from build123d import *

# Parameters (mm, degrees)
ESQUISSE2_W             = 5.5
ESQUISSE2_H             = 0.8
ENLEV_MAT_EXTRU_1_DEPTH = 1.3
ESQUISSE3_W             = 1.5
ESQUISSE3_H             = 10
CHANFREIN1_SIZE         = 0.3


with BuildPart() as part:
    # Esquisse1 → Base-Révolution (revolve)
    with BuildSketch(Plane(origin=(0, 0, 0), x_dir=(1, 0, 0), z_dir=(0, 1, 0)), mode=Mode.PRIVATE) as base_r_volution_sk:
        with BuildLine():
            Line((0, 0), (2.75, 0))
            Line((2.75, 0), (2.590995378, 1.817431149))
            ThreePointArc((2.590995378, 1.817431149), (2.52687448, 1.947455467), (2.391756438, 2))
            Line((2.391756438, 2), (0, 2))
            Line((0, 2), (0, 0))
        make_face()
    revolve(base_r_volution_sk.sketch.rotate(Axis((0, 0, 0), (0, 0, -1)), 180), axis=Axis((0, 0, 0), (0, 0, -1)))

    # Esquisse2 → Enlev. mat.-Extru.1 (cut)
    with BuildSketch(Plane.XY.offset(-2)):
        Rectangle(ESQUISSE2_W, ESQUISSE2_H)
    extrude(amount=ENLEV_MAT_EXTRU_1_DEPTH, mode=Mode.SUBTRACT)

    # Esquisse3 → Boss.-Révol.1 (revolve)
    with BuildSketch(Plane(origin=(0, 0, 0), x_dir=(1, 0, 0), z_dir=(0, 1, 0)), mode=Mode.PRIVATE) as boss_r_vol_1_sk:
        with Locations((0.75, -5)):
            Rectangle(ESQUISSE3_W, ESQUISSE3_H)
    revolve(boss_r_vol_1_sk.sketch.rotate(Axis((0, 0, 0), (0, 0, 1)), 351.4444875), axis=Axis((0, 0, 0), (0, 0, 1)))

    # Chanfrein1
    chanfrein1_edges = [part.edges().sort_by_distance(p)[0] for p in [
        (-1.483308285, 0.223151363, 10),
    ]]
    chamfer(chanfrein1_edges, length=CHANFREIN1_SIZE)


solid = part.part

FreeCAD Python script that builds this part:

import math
import FreeCAD as App
import Part
import Sketcher

V = App.Vector
Q = App.Units.Quantity


def edges_at(feature, points):
    """Names of the edges that pass closest to the given points."""
    edges = feature.Shape.Edges
    near = lambda p: min(range(len(edges)), key=lambda i: edges[i].distToShape(Part.Vertex(*p))[0])
    return sorted({f"Edge{near(p) + 1}" for p in points})


def add_polygon(sketch, points):
    """Adds a closed chain of lines whose ends are joined by coincident constraints."""
    first, n = sketch.GeometryCount, len(points)
    for a, b in zip(points, points[1:] + points[:1]):
        sketch.addGeometry(Part.LineSegment(App.Vector(*a, 0), App.Vector(*b, 0)), False)
    for i in range(n):
        sketch.addConstraint(Sketcher.Constraint("Coincident", first + i, 2, first + (i + 1) % n, 1))

doc = App.newDocument("Part")
body = doc.addObject("PartDesign::Body", "Body")

sketch1 = body.newObject("Sketcher::SketchObject", "Sketch")
sketch1.AttachmentSupport = (doc.getObject("XZ_Plane"), [""])
sketch1.MapMode = "FlatFace"
sketch1.addGeometry(Part.LineSegment(V(0, 0, 0), V(2.75, 0, 0)), False)
sketch1.addGeometry(Part.LineSegment(V(2.75, 0, 0), V(2.590995, -1.817431, 0)), False)
sketch1.addGeometry(Part.ArcOfCircle(Part.Circle(V(2.391756, -1.8, 0), V(0, 0, 1), 0.2), math.radians(-90), math.radians(-5)), False)
sketch1.addGeometry(Part.LineSegment(V(2.391756, -2, 0), V(0, -2, 0)), False)
sketch1.addGeometry(Part.LineSegment(V(0, -2, 0), V(0, 0, 0)), False)
sketch1.addConstraint(Sketcher.Constraint("Coincident", 0, 2, 1, 1))
sketch1.addConstraint(Sketcher.Constraint("Tangent", 1, 2, 2, 2))
sketch1.addConstraint(Sketcher.Constraint("Tangent", 2, 1, 3, 1))
sketch1.addConstraint(Sketcher.Constraint("Coincident", 3, 2, 4, 1))
sketch1.addConstraint(Sketcher.Constraint("Coincident", 4, 2, 0, 1))
sketch1.addConstraint(Sketcher.Constraint("Horizontal", 0))
sketch1.addConstraint(Sketcher.Constraint("Horizontal", 3))
sketch1.addConstraint(Sketcher.Constraint("Vertical", 4))
sketch1.addConstraint(Sketcher.Constraint("Coincident", 4, 2, -1, 1))
sketch1.addConstraint(Sketcher.Constraint("Radius", 2, Q("0.2 mm")))
sketch1.addConstraint(Sketcher.Constraint("DistanceY", 4, 1, 4, 2, Q("2 mm")))
sketch1.addConstraint(Sketcher.Constraint("Angle", 1, Q("-95 deg")))
sketch1.addConstraint(Sketcher.Constraint("DistanceX", 0, 1, 0, 2, Q("2.75 mm")))
revolution = body.newObject("PartDesign::Revolution", "Revolution")
revolution.Profile = sketch1
revolution.ReferenceAxis = (sketch1, ["V_Axis"])
revolution.Angle = 360

sketch2 = body.newObject("Sketcher::SketchObject", "Sketch001")
sketch2.AttachmentSupport = (doc.getObject("XY_Plane"), [""])
sketch2.MapMode = "FlatFace"
sketch2.AttachmentOffset = App.Placement(V(0, 0, -2), App.Rotation())
add_polygon(sketch2, [(-2.75, 0.4), (-2.75, -0.4), (2.75, -0.4), (2.75, 0.4)])
sketch2.addConstraint(Sketcher.Constraint("Vertical", 0))
sketch2.addConstraint(Sketcher.Constraint("Horizontal", 1))
sketch2.addConstraint(Sketcher.Constraint("Vertical", 2))
sketch2.addConstraint(Sketcher.Constraint("Horizontal", 3))
sketch2.addConstraint(Sketcher.Constraint("Symmetric", 0, 2, 2, 2, -1, 1))
sketch2.addConstraint(Sketcher.Constraint("DistanceX", 1, 1, 1, 2, Q("5.5 mm")))
sketch2.addConstraint(Sketcher.Constraint("DistanceY", 0, 2, 0, 1, Q("0.8 mm")))
pocket1 = body.newObject("PartDesign::Pocket", "Pocket")
pocket1.Profile = sketch2
pocket1.Length = 1.3
pocket1.Reversed = True

sketch3 = body.newObject("Sketcher::SketchObject", "Sketch002")
sketch3.AttachmentSupport = (doc.getObject("XZ_Plane"), [""])
sketch3.MapMode = "FlatFace"
add_polygon(sketch3, [(0, 0), (0, 10), (1.5, 10), (1.5, 0)])
sketch3.addConstraint(Sketcher.Constraint("Vertical", 0))
sketch3.addConstraint(Sketcher.Constraint("Horizontal", 1))
sketch3.addConstraint(Sketcher.Constraint("Vertical", 2))
sketch3.addConstraint(Sketcher.Constraint("Horizontal", 3))
sketch3.addConstraint(Sketcher.Constraint("Coincident", 3, 2, -1, 1))
sketch3.addConstraint(Sketcher.Constraint("DistanceY", 0, 1, 0, 2, Q("10 mm")))
sketch3.addConstraint(Sketcher.Constraint("DistanceX", 1, 1, 1, 2, Q("1.5 mm")))
revolution2 = body.newObject("PartDesign::Revolution", "Revolution001")
revolution2.Profile = sketch3
revolution2.ReferenceAxis = (sketch3, ["V_Axis"])
revolution2.Angle = 360
doc.recompute()

chamfer = body.newObject("PartDesign::Chamfer", "Chamfer")
chamfer.Base = (revolution2, edges_at(revolution2, [(-1.483, 0.223, 10)]))
chamfer.Size = 0.3

doc.recompute()
